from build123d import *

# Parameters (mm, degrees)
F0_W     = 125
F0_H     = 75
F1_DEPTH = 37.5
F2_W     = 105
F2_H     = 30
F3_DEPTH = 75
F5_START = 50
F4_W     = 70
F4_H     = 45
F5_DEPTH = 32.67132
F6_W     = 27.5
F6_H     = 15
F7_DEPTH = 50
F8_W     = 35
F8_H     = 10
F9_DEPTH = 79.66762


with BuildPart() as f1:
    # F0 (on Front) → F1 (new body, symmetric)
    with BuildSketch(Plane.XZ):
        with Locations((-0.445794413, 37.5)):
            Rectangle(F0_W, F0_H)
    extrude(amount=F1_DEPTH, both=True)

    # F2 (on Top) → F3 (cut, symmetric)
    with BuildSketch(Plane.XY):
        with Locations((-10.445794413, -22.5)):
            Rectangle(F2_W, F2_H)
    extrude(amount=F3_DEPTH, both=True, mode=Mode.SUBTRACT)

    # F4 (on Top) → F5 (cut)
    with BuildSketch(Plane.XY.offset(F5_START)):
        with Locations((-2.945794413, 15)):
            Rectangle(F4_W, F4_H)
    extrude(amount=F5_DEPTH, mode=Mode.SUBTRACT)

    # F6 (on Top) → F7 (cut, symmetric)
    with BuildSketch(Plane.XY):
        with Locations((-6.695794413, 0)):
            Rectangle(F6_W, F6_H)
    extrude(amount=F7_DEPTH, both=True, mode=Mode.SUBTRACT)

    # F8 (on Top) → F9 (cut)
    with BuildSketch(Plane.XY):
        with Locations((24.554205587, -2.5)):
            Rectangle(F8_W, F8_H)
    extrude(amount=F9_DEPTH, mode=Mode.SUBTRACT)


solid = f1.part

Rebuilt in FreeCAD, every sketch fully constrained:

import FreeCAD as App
import Part
import Sketcher
Q = App.Units.Quantity

doc = App.newDocument("Part")
params = doc.addObject("Spreadsheet::Sheet", "Params")
for row, (alias, value) in enumerate([
    ("sketch1_width", "125 mm"),
    ("sketch1_height", "75 mm"),
    ("pad1_length", "75 mm"),
    ("sketch2_width", "105 mm"),
    ("sketch2_height", "30 mm"),
    ("pocket1_length", "150 mm"),
    ("sketch3_width", "70 mm"),
    ("sketch3_height", "45 mm"),
    ("pocket2_length", "32.67132 mm"),
    ("sketch4_height", "15 mm"),
    ("sketch4_width", "27.5 mm"),
    ("pocket3_length", "100 mm"),
    ("sketch5_width", "35 mm"),
    ("sketch5_height", "10 mm"),
    ("pocket4_length", "79.66762 mm"),
], start=1):
    params.set(f"A{row}", alias)
    params.set(f"B{row}", "=" + value)
    params.setAlias(f"B{row}", alias)

body = doc.addObject("PartDesign::Body", "Body")

# Sketch on XZ plane
sketch1 = doc.addObject("Sketcher::SketchObject", "Sketch")
body.addObject(sketch1)
sketch1.AttachmentSupport = (doc.XZ_Plane, [""])
sketch1.MapMode = "FlatFace"
sketch1.addGeometry(Part.LineSegment(App.Vector(-63, 75, 0), App.Vector(-63, 0, 0)), False)
sketch1.addGeometry(Part.LineSegment(App.Vector(-63, 0, 0), App.Vector(62, 0, 0)), False)
sketch1.addGeometry(Part.LineSegment(App.Vector(62, 0, 0), App.Vector(62, 75, 0)), False)
sketch1.addGeometry(Part.LineSegment(App.Vector(62, 75, 0), App.Vector(-63, 75, 0)), False)
sketch1.addConstraint(Sketcher.Constraint("Coincident", 0, 2, 1, 1))
sketch1.addConstraint(Sketcher.Constraint("Coincident", 1, 2, 2, 1))
sketch1.addConstraint(Sketcher.Constraint("Coincident", 2, 2, 3, 1))
sketch1.addConstraint(Sketcher.Constraint("Coincident", 3, 2, 0, 1))
sketch1.addConstraint(Sketcher.Constraint("Vertical", 0))
sketch1.addConstraint(Sketcher.Constraint("Horizontal", 1))
sketch1.addConstraint(Sketcher.Constraint("Vertical", 2))
sketch1.addConstraint(Sketcher.Constraint("Horizontal", 3))
sketch1.addConstraint(Sketcher.Constraint("PointOnObject", 0, 2, -1))
sketch1.addConstraint(Sketcher.Constraint("DistanceX", 1, 1, 1, 2, Q("125 mm")))
sketch1.addConstraint(Sketcher.Constraint("DistanceY", 0, 2, 0, 1, Q("75 mm")))
sketch1.addConstraint(Sketcher.Constraint("DistanceX", 0, 2, -1, 1, Q("62.945794 mm")))
sketch1.setExpression("Constraints[9]", "Params.sketch1_width")
sketch1.setExpression("Constraints[10]", "Params.sketch1_height")
pad1 = doc.addObject("PartDesign::Pad", "Pad")
body.addObject(pad1)
pad1.Profile = sketch1
pad1.setExpression("Length", "Params.pad1_length")
pad1.Midplane = True

# Sketch on XY plane
sketch2 = doc.addObject("Sketcher::SketchObject", "Sketch001")
body.addObject(sketch2)
sketch2.AttachmentSupport = (doc.XY_Plane, [""])
sketch2.MapMode = "FlatFace"
sketch2.addGeometry(Part.LineSegment(App.Vector(-63, -8, 0), App.Vector(-63, -38, 0)), False)
sketch2.addGeometry(Part.LineSegment(App.Vector(-63, -38, 0), App.Vector(42, -38, 0)), False)
sketch2.addGeometry(Part.LineSegment(App.Vector(42, -38, 0), App.Vector(42, -8, 0)), False)
sketch2.addGeometry(Part.LineSegment(App.Vector(42, -8, 0), App.Vector(-63, -8, 0)), False)
sketch2.addConstraint(Sketcher.Constraint("Coincident", 0, 2, 1, 1))
sketch2.addConstraint(Sketcher.Constraint("Coincident", 1, 2, 2, 1))
sketch2.addConstraint(Sketcher.Constraint("Coincident", 2, 2, 3, 1))
sketch2.addConstraint(Sketcher.Constraint("Coincident", 3, 2, 0, 1))
sketch2.addConstraint(Sketcher.Constraint("Vertical", 0))
sketch2.addConstraint(Sketcher.Constraint("Horizontal", 1))
sketch2.addConstraint(Sketcher.Constraint("Vertical", 2))
sketch2.addConstraint(Sketcher.Constraint("Horizontal", 3))
sketch2.addConstraint(Sketcher.Constraint("DistanceX", 1, 1, 1, 2, Q("105 mm")))
sketch2.addConstraint(Sketcher.Constraint("DistanceY", 0, 2, 0, 1, Q("30 mm")))
sketch2.addConstraint(Sketcher.Constraint("DistanceY", 0, 2, -1, 1, Q("37.5 mm")))
sketch2.addConstraint(Sketcher.Constraint("DistanceX", 0, 2, -1, 1, Q("62.945794 mm")))
sketch2.setExpression("Constraints[8]", "Params.sketch2_width")
sketch2.setExpression("Constraints[9]", "Params.sketch2_height")
pocket1 = doc.addObject("PartDesign::Pocket", "Pocket")
body.addObject(pocket1)
pocket1.Profile = sketch2
pocket1.setExpression("Length", "Params.pocket1_length")
pocket1.Midplane = True

# Sketch on XY plane
sketch3 = doc.addObject("Sketcher::SketchObject", "Sketch002")
body.addObject(sketch3)
sketch3.AttachmentSupport = (doc.XY_Plane, [""])
sketch3.MapMode = "FlatFace"
sketch3.AttachmentOffset = App.Placement(App.Vector(0, 0, 50), App.Rotation())
sketch3.addGeometry(Part.LineSegment(App.Vector(-38, 38, 0), App.Vector(-38, -8, 0)), False)
sketch3.addGeometry(Part.LineSegment(App.Vector(-38, -8, 0), App.Vector(32, -8, 0)), False)
sketch3.addGeometry(Part.LineSegment(App.Vector(32, -8, 0), App.Vector(32, 38, 0)), False)
sketch3.addGeometry(Part.LineSegment(App.Vector(32, 38, 0), App.Vector(-38, 38, 0)), False)
sketch3.addConstraint(Sketcher.Constraint("Coincident", 0, 2, 1, 1))
sketch3.addConstraint(Sketcher.Constraint("Coincident", 1, 2, 2, 1))
sketch3.addConstraint(Sketcher.Constraint("Coincident", 2, 2, 3, 1))
sketch3.addConstraint(Sketcher.Constraint("Coincident", 3, 2, 0, 1))
sketch3.addConstraint(Sketcher.Constraint("Vertical", 0))
sketch3.addConstraint(Sketcher.Constraint("Horizontal", 1))
sketch3.addConstraint(Sketcher.Constraint("Vertical", 2))
sketch3.addConstraint(Sketcher.Constraint("Horizontal", 3))
sketch3.addConstraint(Sketcher.Constraint("DistanceX", 1, 1, 1, 2, Q("70 mm")))
sketch3.addConstraint(Sketcher.Constraint("DistanceY", 0, 2, 0, 1, Q("45 mm")))
sketch3.addConstraint(Sketcher.Constraint("DistanceY", 0, 2, -1, 1, Q("7.5 mm")))
sketch3.addConstraint(Sketcher.Constraint("DistanceX", 0, 2, -1, 1, Q("37.945794 mm")))
sketch3.setExpression("Constraints[8]", "Params.sketch3_width")
sketch3.setExpression("Constraints[9]", "Params.sketch3_height")
pocket2 = doc.addObject("PartDesign::Pocket", "Pocket001")
body.addObject(pocket2)
pocket2.Profile = sketch3
pocket2.setExpression("Length", "Params.pocket2_length")
pocket2.Reversed = True

# Sketch on XY plane
sketch4 = doc.addObject("Sketcher::SketchObject", "Sketch003")
body.addObject(sketch4)
sketch4.AttachmentSupport = (doc.XY_Plane, [""])
sketch4.MapMode = "FlatFace"
sketch4.addGeometry(Part.LineSegment(App.Vector(-20, 8, 0), App.Vector(-20, -8, 0)), False)
sketch4.addGeometry(Part.LineSegment(App.Vector(-20, -8, 0), App.Vector(7, -8, 0)), False)
sketch4.addGeometry(Part.LineSegment(App.Vector(7, -8, 0), App.Vector(7, 8, 0)), False)
sketch4.addGeometry(Part.LineSegment(App.Vector(7, 8, 0), App.Vector(-20, 8, 0)), False)
sketch4.addConstraint(Sketcher.Constraint("Coincident", 0, 2, 1, 1))
sketch4.addConstraint(Sketcher.Constraint("Coincident", 1, 2, 2, 1))
sketch4.addConstraint(Sketcher.Constraint("Coincident", 2, 2, 3, 1))
sketch4.addConstraint(Sketcher.Constraint("Coincident", 3, 2, 0, 1))
sketch4.addConstraint(Sketcher.Constraint("Vertical", 0))
sketch4.addConstraint(Sketcher.Constraint("Horizontal", 1))
sketch4.addConstraint(Sketcher.Constraint("Vertical", 2))
sketch4.addConstraint(Sketcher.Constraint("Horizontal", 3))
sketch4.addConstraint(Sketcher.Constraint("DistanceY", 0, 2, 0, 1, Q("15 mm")))
sketch4.addConstraint(Sketcher.Constraint("DistanceX", 1, 1, 1, 2, Q("27.5 mm")))
sketch4.addConstraint(Sketcher.Constraint("DistanceY", 0, 2, -1, 1, Q("7.5 mm")))
sketch4.addConstraint(Sketcher.Constraint("DistanceX", 0, 2, -1, 1, Q("20.445794 mm")))
sketch4.setExpression("Constraints[8]", "Params.sketch4_height")
sketch4.setExpression("Constraints[9]", "Params.sketch4_width")
pocket3 = doc.addObject("PartDesign::Pocket", "Pocket002")
body.addObject(pocket3)
pocket3.Profile = sketch4
pocket3.setExpression("Length", "Params.pocket3_length")
pocket3.Midplane = True

# Sketch on XY plane
sketch5 = doc.addObject("Sketcher::SketchObject", "Sketch004")
body.addObject(sketch5)
sketch5.AttachmentSupport = (doc.XY_Plane, [""])
sketch5.MapMode = "FlatFace"
sketch5.addGeometry(Part.LineSegment(App.Vector(7, 2, 0), App.Vector(7, -8, 0)), False)
sketch5.addGeometry(Part.LineSegment(App.Vector(7, -8, 0), App.Vector(42, -8, 0)), False)
sketch5.addGeometry(Part.LineSegment(App.Vector(42, -8, 0), App.Vector(42, 2, 0)), False)
sketch5.addGeometry(Part.LineSegment(App.Vector(42, 2, 0), App.Vector(7, 2, 0)), False)
sketch5.addConstraint(Sketcher.Constraint("Coincident", 0, 2, 1, 1))
sketch5.addConstraint(Sketcher.Constraint("Coincident", 1, 2, 2, 1))
sketch5.addConstraint(Sketcher.Constraint("Coincident", 2, 2, 3, 1))
sketch5.addConstraint(Sketcher.Constraint("Coincident", 3, 2, 0, 1))
sketch5.addConstraint(Sketcher.Constraint("Vertical", 0))
sketch5.addConstraint(Sketcher.Constraint("Horizontal", 1))
sketch5.addConstraint(Sketcher.Constraint("Vertical", 2))
sketch5.addConstraint(Sketcher.Constraint("Horizontal", 3))
sketch5.addConstraint(Sketcher.Constraint("DistanceX", 1, 1, 1, 2, Q("35 mm")))
sketch5.addConstraint(Sketcher.Constraint("DistanceY", 0, 2, 0, 1, Q("10 mm")))
sketch5.addConstraint(Sketcher.Constraint("DistanceY", 0, 2, -1, 1, Q("7.5 mm")))
sketch5.addConstraint(Sketcher.Constraint("DistanceX", -1, 1, 0, 2, Q("7.054206 mm")))
sketch5.setExpression("Constraints[8]", "Params.sketch5_width")
sketch5.setExpression("Constraints[9]", "Params.sketch5_height")
pocket4 = doc.addObject("PartDesign::Pocket", "Pocket003")
body.addObject(pocket4)
pocket4.Profile = sketch5
pocket4.setExpression("Length", "Params.pocket4_length")
pocket4.Reversed = True

doc.recompute()
